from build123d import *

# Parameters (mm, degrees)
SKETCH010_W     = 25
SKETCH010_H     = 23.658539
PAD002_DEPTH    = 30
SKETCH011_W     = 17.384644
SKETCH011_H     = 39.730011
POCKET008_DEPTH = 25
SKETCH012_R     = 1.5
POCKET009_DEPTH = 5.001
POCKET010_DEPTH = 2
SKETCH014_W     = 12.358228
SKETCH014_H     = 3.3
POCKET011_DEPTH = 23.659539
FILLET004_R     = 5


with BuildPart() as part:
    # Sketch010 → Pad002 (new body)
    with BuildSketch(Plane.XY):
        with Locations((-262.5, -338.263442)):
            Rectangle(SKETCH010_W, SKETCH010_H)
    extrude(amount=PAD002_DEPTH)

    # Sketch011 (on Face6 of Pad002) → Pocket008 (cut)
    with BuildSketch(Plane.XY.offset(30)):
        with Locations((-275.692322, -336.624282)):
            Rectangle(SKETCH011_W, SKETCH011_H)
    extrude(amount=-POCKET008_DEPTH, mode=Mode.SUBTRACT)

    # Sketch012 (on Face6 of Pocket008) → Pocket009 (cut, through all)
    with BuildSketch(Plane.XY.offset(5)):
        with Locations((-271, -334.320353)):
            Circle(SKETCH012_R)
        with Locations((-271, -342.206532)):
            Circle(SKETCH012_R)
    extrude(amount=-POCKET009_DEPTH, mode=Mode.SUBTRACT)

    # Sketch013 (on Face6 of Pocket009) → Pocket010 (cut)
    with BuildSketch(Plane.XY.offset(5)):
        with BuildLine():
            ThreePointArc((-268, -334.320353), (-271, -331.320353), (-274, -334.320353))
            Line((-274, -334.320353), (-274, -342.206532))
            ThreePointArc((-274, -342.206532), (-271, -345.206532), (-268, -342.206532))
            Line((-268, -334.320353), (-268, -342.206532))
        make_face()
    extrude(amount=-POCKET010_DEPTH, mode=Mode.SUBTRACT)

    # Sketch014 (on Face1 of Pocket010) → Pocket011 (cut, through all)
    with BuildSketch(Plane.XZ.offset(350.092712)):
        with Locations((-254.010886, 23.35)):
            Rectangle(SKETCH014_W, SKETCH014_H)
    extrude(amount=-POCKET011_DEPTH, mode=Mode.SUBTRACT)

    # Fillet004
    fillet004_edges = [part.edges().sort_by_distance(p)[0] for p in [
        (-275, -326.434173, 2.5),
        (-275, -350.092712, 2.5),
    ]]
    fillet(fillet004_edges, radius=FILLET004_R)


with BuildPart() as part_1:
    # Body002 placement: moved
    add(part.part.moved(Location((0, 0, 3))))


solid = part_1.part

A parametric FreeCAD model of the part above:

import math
import FreeCAD as App
import Part
import Sketcher


def edges_at(feature, points):
    """Names of the edges that pass closest to the given points."""
    edges = feature.Shape.Edges
    near = lambda p: min(range(len(edges)), key=lambda i: edges[i].distToShape(Part.Vertex(*p))[0])
    return sorted({f"Edge{near(p) + 1}" for p in points})

doc = App.newDocument("Part")
params = doc.addObject("Spreadsheet::Sheet", "Params")
for row, (alias, value) in enumerate([
    ("sketch1_width", "25 mm"),
    ("pad1_length", "30 mm"),
    ("pocket1_length", "25 mm"),
    ("sketch3_diameter", "3 mm"),
    ("sketch4_radius", "3 mm"),
    ("pocket3_length", "2 mm"),
    ("sketch5_height", "3.3 mm"),
    ("fillet_radius", "5 mm"),
], start=1):
    params.set(f"A{row}", alias)
    params.set(f"B{row}", "=" + value)
    params.setAlias(f"B{row}", alias)

body = doc.addObject("PartDesign::Body", "Body")

# Sketch on XY plane
sketch1 = doc.addObject("Sketcher::SketchObject", "Sketch")
body.addObject(sketch1)
sketch1.AttachmentSupport = (doc.XY_Plane, [""])
sketch1.MapMode = "FlatFace"
sketch1.addGeometry(Part.LineSegment(App.Vector(-275, -326, 0), App.Vector(-275, -350, 0)), False)
sketch1.addGeometry(Part.LineSegment(App.Vector(-275, -350, 0), App.Vector(-250, -350, 0)), False)
sketch1.addGeometry(Part.LineSegment(App.Vector(-250, -350, 0), App.Vector(-250, -326, 0)), False)
sketch1.addGeometry(Part.LineSegment(App.Vector(-250, -326, 0), App.Vector(-275, -326, 0)), False)
sketch1.addConstraint(Sketcher.Constraint("Coincident", 0, 2, 1, 1))
sketch1.addConstraint(Sketcher.Constraint("Coincident", 1, 2, 2, 1))
sketch1.addConstraint(Sketcher.Constraint("Coincident", 2, 2, 3, 1))
sketch1.addConstraint(Sketcher.Constraint("Coincident", 3, 2, 0, 1))
sketch1.addConstraint(Sketcher.Constraint("Vertical", 0))
sketch1.addConstraint(Sketcher.Constraint("Horizontal", 1))
sketch1.addConstraint(Sketcher.Constraint("Vertical", 2))
sketch1.addConstraint(Sketcher.Constraint("Horizontal", 3))
sketch1.addConstraint(Sketcher.Constraint("DistanceX", 1, 1, 1, 2, 25.0))
sketch1.addConstraint(Sketcher.Constraint("DistanceX", 0, 2, -1, 1, 275.0))
sketch1.addConstraint(Sketcher.Constraint("DistanceY", 0, 2, 0, 1, 23.658539))
sketch1.addConstraint(Sketcher.Constraint("DistanceY", 0, 2, -1, 1, 350.092712))
sketch1.setExpression("Constraints[8]", "Params.sketch1_width")
pad1 = doc.addObject("PartDesign::Pad", "Pad")
body.addObject(pad1)
pad1.Profile = sketch1
pad1.setExpression("Length", "Params.pad1_length")

# Sketch on XY plane
sketch2 = doc.addObject("Sketcher::SketchObject", "Sketch001")
body.addObject(sketch2)
sketch2.AttachmentSupport = (doc.XY_Plane, [""])
sketch2.MapMode = "FlatFace"
sketch2.AttachmentOffset = App.Placement(App.Vector(0, 0, 30), App.Rotation())
sketch2.addGeometry(Part.LineSegment(App.Vector(-284, -317, 0), App.Vector(-284, -356, 0)), False)
sketch2.addGeometry(Part.LineSegment(App.Vector(-284, -356, 0), App.Vector(-267, -356, 0)), False)
sketch2.addGeometry(Part.LineSegment(App.Vector(-267, -356, 0), App.Vector(-267, -317, 0)), False)
sketch2.addGeometry(Part.LineSegment(App.Vector(-267, -317, 0), App.Vector(-284, -317, 0)), False)
sketch2.addConstraint(Sketcher.Constraint("Coincident", 0, 2, 1, 1))
sketch2.addConstraint(Sketcher.Constraint("Coincident", 1, 2, 2, 1))
sketch2.addConstraint(Sketcher.Constraint("Coincident", 2, 2, 3, 1))
sketch2.addConstraint(Sketcher.Constraint("Coincident", 3, 2, 0, 1))
sketch2.addConstraint(Sketcher.Constraint("Vertical", 0))
sketch2.addConstraint(Sketcher.Constraint("Horizontal", 1))
sketch2.addConstraint(Sketcher.Constraint("Vertical", 2))
sketch2.addConstraint(Sketcher.Constraint("Horizontal", 3))
sketch2.addConstraint(Sketcher.Constraint("DistanceX", 1, 2, -1, 1, 267.0))
sketch2.addConstraint(Sketcher.Constraint("DistanceY", 0, 2, 0, 1, 39.730011))
sketch2.addConstraint(Sketcher.Constraint("DistanceX", 1, 1, 1, 2, 17.384644))
sketch2.addConstraint(Sketcher.Constraint("DistanceY", 0, 2, -1, 1, 356.489287))
pocket1 = doc.addObject("PartDesign::Pocket", "Pocket")
body.addObject(pocket1)
pocket1.Profile = sketch2
pocket1.setExpression("Length", "Params.pocket1_length")

# Sketch on XY plane
sketch3 = doc.addObject("Sketcher::SketchObject", "Sketch002")
body.addObject(sketch3)
sketch3.AttachmentSupport = (doc.XY_Plane, [""])
sketch3.MapMode = "FlatFace"
sketch3.AttachmentOffset = App.Placement(App.Vector(0, 0, 5), App.Rotation())
sketch3.addGeometry(Part.Circle(App.Vector(-271, -334.3, 0), App.Vector(0, 0, 1), 1.5), False)
sketch3.addGeometry(Part.Circle(App.Vector(-271, -342.2, 0), App.Vector(0, 0, 1), 1.5), False)
sketch3.addConstraint(Sketcher.Constraint("Equal", 0, 1))
sketch3.addConstraint(Sketcher.Constraint("Vertical", 0, 3, 1, 3))
sketch3.addConstraint(Sketcher.Constraint("Diameter", 0, 3.0))
sketch3.addConstraint(Sketcher.Constraint("DistanceX", 0, 3, -1, 1, 271.0))
sketch3.addConstraint(Sketcher.Constraint("DistanceY", 1, 3, -1, 1, 342.206532))
sketch3.addConstraint(Sketcher.Constraint("DistanceY", 1, 3, 0, 3, 7.886179))
sketch3.setExpression("Constraints[2]", "Params.sketch3_diameter")
pocket2 = doc.addObject("PartDesign::Pocket", "Pocket001")
body.addObject(pocket2)
pocket2.Profile = sketch3
pocket2.Type = "ThroughAll"

# Sketch on XY plane
sketch4 = doc.addObject("Sketcher::SketchObject", "Sketch003")
body.addObject(sketch4)
sketch4.AttachmentSupport = (doc.XY_Plane, [""])
sketch4.MapMode = "FlatFace"
sketch4.AttachmentOffset = App.Placement(App.Vector(0, 0, 5), App.Rotation())
sketch4.addGeometry(Part.ArcOfCircle(Part.Circle(App.Vector(-271, -334.3, 0), App.Vector(0, 0, 1), 3), math.radians(0), math.radians(180)), False)
sketch4.addGeometry(Part.LineSegment(App.Vector(-274, -334.3, 0), App.Vector(-274, -342.2, 0)), False)
sketch4.addGeometry(Part.ArcOfCircle(Part.Circle(App.Vector(-271, -342.2, 0), App.Vector(0, 0, 1), 3), math.radians(180), math.radians(360)), False)
sketch4.addGeometry(Part.LineSegment(App.Vector(-268, -342.2, 0), App.Vector(-268, -334.3, 0)), False)
sketch4.addConstraint(Sketcher.Constraint("Tangent", 0, 2, 1, 1))
sketch4.addConstraint(Sketcher.Constraint("Tangent", 1, 2, 2, 1))
sketch4.addConstraint(Sketcher.Constraint("Tangent", 2, 2, 3, 1))
sketch4.addConstraint(Sketcher.Constraint("Tangent", 3, 2, 0, 1))
sketch4.addConstraint(Sketcher.Constraint("Vertical", 1))
sketch4.addConstraint(Sketcher.Constraint("Vertical", 3))
sketch4.addConstraint(Sketcher.Constraint("Radius", 0, 3.0))
sketch4.addConstraint(Sketcher.Constraint("DistanceX", 0, 3, -1, 1, 271.0))
sketch4.addConstraint(Sketcher.Constraint("DistanceY", 1, 2, 1, 1, 7.886179))
sketch4.addConstraint(Sketcher.Constraint("DistanceY", 2, 3, -1, 1, 342.206532))
sketch4.setExpression("Constraints[6]", "Params.sketch4_radius")
pocket3 = doc.addObject("PartDesign::Pocket", "Pocket002")
body.addObject(pocket3)
pocket3.Profile = sketch4
pocket3.setExpression("Length", "Params.pocket3_length")

# Sketch on XZ plane
sketch5 = doc.addObject("Sketcher::SketchObject", "Sketch004")
body.addObject(sketch5)
sketch5.AttachmentSupport = (doc.XZ_Plane, [""])
sketch5.MapMode = "FlatFace"
sketch5.AttachmentOffset = App.Placement(App.Vector(0, 0, 350.092712), App.Rotation())
sketch5.addGeometry(Part.LineSegment(App.Vector(-260.2, 25, 0), App.Vector(-260.2, 21.7, 0)), False)
sketch5.addGeometry(Part.LineSegment(App.Vector(-260.2, 21.7, 0), App.Vector(-247.8, 21.7, 0)), False)
sketch5.addGeometry(Part.LineSegment(App.Vector(-247.8, 21.7, 0), App.Vector(-247.8, 25, 0)), False)
sketch5.addGeometry(Part.LineSegment(App.Vector(-247.8, 25, 0), App.Vector(-260.2, 25, 0)), False)
sketch5.addConstraint(Sketcher.Constraint("Coincident", 0, 2, 1, 1))
sketch5.addConstraint(Sketcher.Constraint("Coincident", 1, 2, 2, 1))
sketch5.addConstraint(Sketcher.Constraint("Coincident", 2, 2, 3, 1))
sketch5.addConstraint(Sketcher.Constraint("Coincident", 3, 2, 0, 1))
sketch5.addConstraint(Sketcher.Constraint("Vertical", 0))
sketch5.addConstraint(Sketcher.Constraint("Horizontal", 1))
sketch5.addConstraint(Sketcher.Constraint("Vertical", 2))
sketch5.addConstraint(Sketcher.Constraint("Horizontal", 3))
sketch5.addConstraint(Sketcher.Constraint("DistanceY", 0, 2, 0, 1, 3.3))
sketch5.addConstraint(Sketcher.Constraint("DistanceY", -1, 1, 2, 2, 25.0))
sketch5.addConstraint(Sketcher.Constraint("DistanceX", 0, 2, -1, 1, 260.19))
sketch5.addConstraint(Sketcher.Constraint("DistanceX", 1, 1, 1, 2, 12.358228))
sketch5.setExpression("Constraints[8]", "Params.sketch5_height")
pocket4 = doc.addObject("PartDesign::Pocket", "Pocket003")
body.addObject(pocket4)
pocket4.Profile = sketch5
pocket4.Type = "ThroughAll"
doc.recompute()

fillet = doc.addObject("PartDesign::Fillet", "Fillet")
body.addObject(fillet)
fillet.Base = (pocket4, edges_at(pocket4, [(-275, -326.434, 2.5), (-275, -350.093, 2.5)]))
fillet.setExpression("Radius", "Params.fillet_radius")
body2 = doc.addObject("PartDesign::Body", "Body001")
doc.recompute()

body.Placement = App.Placement(App.Vector(0, 0, 3), App.Rotation(App.Vector(0, 0, 1), 0))
boolean = doc.addObject("PartDesign::Boolean", "Boolean")
body2.addObject(boolean)
boolean.Type = "Fuse"
boolean.addObjects([body])

doc.recompute()
